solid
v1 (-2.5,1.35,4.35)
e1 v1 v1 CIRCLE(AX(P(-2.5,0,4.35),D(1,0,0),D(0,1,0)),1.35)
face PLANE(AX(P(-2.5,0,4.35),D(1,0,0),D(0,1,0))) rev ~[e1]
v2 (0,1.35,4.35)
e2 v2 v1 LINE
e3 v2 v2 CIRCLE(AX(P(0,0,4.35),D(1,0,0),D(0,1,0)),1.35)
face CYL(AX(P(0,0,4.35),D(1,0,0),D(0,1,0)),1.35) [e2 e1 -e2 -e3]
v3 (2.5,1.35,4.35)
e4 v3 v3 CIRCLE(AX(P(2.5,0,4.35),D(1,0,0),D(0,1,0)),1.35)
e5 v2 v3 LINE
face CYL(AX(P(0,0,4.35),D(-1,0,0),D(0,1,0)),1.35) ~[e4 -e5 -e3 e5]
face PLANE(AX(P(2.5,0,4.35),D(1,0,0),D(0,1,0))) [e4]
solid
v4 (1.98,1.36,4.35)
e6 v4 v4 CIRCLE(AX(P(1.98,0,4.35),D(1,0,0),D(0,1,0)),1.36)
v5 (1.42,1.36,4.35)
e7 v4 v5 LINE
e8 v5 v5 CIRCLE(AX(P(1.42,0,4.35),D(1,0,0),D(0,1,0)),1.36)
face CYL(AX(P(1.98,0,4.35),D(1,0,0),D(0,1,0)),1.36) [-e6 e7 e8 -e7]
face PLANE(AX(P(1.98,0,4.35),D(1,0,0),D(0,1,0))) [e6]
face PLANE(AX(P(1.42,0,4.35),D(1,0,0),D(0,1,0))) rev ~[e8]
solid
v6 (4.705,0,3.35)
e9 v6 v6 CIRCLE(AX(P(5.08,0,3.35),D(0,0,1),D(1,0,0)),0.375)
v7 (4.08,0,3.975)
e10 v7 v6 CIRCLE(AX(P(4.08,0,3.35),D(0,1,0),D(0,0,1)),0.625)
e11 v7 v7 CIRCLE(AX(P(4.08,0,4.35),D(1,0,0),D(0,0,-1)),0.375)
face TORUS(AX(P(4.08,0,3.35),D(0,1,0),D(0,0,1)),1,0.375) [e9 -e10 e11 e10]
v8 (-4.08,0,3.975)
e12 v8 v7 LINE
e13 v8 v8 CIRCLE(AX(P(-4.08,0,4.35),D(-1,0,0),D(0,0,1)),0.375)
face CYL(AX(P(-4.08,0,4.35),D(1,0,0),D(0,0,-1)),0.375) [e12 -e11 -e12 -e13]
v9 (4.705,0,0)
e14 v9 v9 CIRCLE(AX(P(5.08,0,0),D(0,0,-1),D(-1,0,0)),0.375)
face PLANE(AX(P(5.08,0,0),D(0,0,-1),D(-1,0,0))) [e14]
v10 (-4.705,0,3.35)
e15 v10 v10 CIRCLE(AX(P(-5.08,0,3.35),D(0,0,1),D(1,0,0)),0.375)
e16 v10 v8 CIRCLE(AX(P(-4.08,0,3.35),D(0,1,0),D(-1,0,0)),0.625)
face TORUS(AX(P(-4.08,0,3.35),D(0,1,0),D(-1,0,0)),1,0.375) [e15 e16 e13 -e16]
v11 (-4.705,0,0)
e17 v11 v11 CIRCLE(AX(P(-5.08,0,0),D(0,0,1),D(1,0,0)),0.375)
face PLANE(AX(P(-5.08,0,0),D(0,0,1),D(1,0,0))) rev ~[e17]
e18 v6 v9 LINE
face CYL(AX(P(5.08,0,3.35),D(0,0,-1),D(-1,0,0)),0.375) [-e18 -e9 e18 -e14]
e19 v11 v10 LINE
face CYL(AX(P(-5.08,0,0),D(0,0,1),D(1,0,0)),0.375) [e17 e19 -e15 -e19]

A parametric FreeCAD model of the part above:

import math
import FreeCAD as App
import Part
import Sketcher
from FreeCAD import Vector
Q = App.Units.Quantity

doc = App.newDocument("Part")
body = doc.addObject("PartDesign::Body", "Body")

# Sketch on XY plane
sketch1 = body.newObject("Sketcher::SketchObject", "Sketch")
sketch1.AttachmentSupport = (doc.getObject("XY_Plane"), [""])
sketch1.MapMode = "FlatFace"
sketch1.addGeometry(Part.Circle(Vector(-5.08, 0, 0), Vector(0, 0, 1), 0.38), False)
sketch1.addConstraint([
    Sketcher.Constraint("PointOnObject", 0, 3, -1),
    Sketcher.Constraint("Diameter", 0, Q("0.75 mm")),
    Sketcher.Constraint("DistanceX", 0, 3, -1, 1, Q("5.08 mm")),
])

# Sketch on XZ plane
sketch2 = body.newObject("Sketcher::SketchObject", "Sketch001")
sketch2.AttachmentSupport = (doc.getObject("XZ_Plane"), [""])
sketch2.MapMode = "FlatFace"
sketch2.addGeometry([
    Part.LineSegment(Vector(-5.1, 0, 0), Vector(-5.1, 3.4, 0)),  # 0
    Part.ArcOfCircle(Part.Circle(Vector(-4.1, 3.4, 0), Vector(0, 0, 1), 1), math.radians(90), math.radians(180)),  # 1
    Part.LineSegment(Vector(-4.1, 4.3, 0), Vector(4.1, 4.3, 0)),  # 2
    Part.ArcOfCircle(Part.Circle(Vector(4.1, 3.4, 0), Vector(0, 0, 1), 1), math.radians(0), math.radians(90)),  # 3
    Part.LineSegment(Vector(5.1, 3.4, 0), Vector(5.1, 0, 0)),  # 4
], False)
sketch2.addConstraint([
    Sketcher.Constraint("Tangent", 0, 2, 1, 2),
    Sketcher.Constraint("Tangent", 1, 1, 2, 1),
    Sketcher.Constraint("Tangent", 2, 2, 3, 2),
    Sketcher.Constraint("Tangent", 3, 1, 4, 1),
    Sketcher.Constraint("Vertical", 0),
    Sketcher.Constraint("Horizontal", 2),
    Sketcher.Constraint("Vertical", 4),
    Sketcher.Constraint("Equal", 1, 3),
    Sketcher.Constraint("Symmetric", 0, 1, 4, 2, -1, 1),
    Sketcher.Constraint("PointOnObject", 0, 1, -1),
    Sketcher.Constraint("Radius", 1, Q("1 mm")),
    Sketcher.Constraint("DistanceX", 2, 1, 2, 2, Q("8.16 mm")),
    Sketcher.Constraint("DistanceY", 0, 1, 0, 2, Q("3.35 mm")),
])
doc.recompute()

additivepipe = body.newObject("PartDesign::AdditivePipe", "AdditivePipe")
additivepipe.Profile = sketch1
additivepipe.Spine = (sketch2, ["Edge1", "Edge2", "Edge3", "Edge4", "Edge5"])
body2 = doc.addObject("PartDesign::Body", "Body001")

# Sketch on YZ plane
sketch3 = body2.newObject("Sketcher::SketchObject", "Sketch002")
sketch3.AttachmentSupport = (doc.getObject("YZ_Plane001"), [""])
sketch3.MapMode = "FlatFace"
sketch3.addGeometry(Part.Circle(Vector(0, 4.3, 0), Vector(0, 0, 1), 1.4), False)
sketch3.addConstraint([
    Sketcher.Constraint("PointOnObject", 0, 3, -2),
    Sketcher.Constraint("Diameter", 0, Q("2.7 mm")),
    Sketcher.Constraint("DistanceY", -1, 1, 0, 3, Q("4.35 mm")),
])
pad1 = body2.newObject("PartDesign::Pad", "Pad")
pad1.Profile = sketch3
pad1.Type = "TwoLengths"
pad1.Length = 2.5
pad1.Length2 = 2.5
pad1.Reversed = True
body3 = doc.addObject("PartDesign::Body", "Body002")

# Sketch on YZ plane
sketch4 = body3.newObject("Sketcher::SketchObject", "Sketch003")
sketch4.AttachmentSupport = (doc.getObject("YZ_Plane002"), [""])
sketch4.MapMode = "FlatFace"
sketch4.AttachmentOffset = App.Placement(Vector(0, 0, 1.98), App.Rotation())
sketch4.addGeometry(Part.Circle(Vector(0, 4.3, 0), Vector(0, 0, 1), 1.4), False)
sketch4.addConstraint([
    Sketcher.Constraint("PointOnObject", 0, 3, -2),
    Sketcher.Constraint("Diameter", 0, Q("2.72 mm")),
    Sketcher.Constraint("DistanceY", -1, 1, 0, 3, Q("4.35 mm")),
])
pad2 = body3.newObject("PartDesign::Pad", "Pad001")
pad2.Profile = sketch4
pad2.Length = 0.56
pad2.Reversed = True

doc.recompute()
